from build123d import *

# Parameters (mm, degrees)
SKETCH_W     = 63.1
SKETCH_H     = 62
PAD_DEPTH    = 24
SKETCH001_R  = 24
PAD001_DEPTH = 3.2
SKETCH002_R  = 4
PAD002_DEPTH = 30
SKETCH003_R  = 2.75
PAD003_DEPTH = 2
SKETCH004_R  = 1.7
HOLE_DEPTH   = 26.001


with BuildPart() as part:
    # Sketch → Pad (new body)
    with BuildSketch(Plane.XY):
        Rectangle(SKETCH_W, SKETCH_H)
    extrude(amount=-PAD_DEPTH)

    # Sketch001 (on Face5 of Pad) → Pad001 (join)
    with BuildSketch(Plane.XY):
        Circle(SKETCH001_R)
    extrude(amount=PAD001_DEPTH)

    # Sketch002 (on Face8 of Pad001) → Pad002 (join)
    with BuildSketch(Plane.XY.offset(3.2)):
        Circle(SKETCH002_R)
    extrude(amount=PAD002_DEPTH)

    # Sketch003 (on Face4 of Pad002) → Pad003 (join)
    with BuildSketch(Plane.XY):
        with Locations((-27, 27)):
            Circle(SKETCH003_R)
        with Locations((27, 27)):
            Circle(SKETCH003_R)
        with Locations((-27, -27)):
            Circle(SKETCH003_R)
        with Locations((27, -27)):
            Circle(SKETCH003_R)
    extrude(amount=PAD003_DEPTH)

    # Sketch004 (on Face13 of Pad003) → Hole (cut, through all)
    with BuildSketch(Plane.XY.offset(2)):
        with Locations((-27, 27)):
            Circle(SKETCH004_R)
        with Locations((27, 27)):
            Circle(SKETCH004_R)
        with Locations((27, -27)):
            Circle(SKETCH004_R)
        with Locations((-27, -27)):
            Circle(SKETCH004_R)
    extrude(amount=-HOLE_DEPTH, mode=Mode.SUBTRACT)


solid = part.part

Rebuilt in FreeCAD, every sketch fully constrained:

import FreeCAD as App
import Part
import Sketcher

V = App.Vector
Q = App.Units.Quantity


def add_polygon(sketch, points):
    """Adds a closed chain of lines whose ends are joined by coincident constraints."""
    first, n = sketch.GeometryCount, len(points)
    for a, b in zip(points, points[1:] + points[:1]):
        sketch.addGeometry(Part.LineSegment(App.Vector(*a, 0), App.Vector(*b, 0)), False)
    for i in range(n):
        sketch.addConstraint(Sketcher.Constraint("Coincident", first + i, 2, first + (i + 1) % n, 1))

doc = App.newDocument("Part")
body = doc.addObject("PartDesign::Body", "Body")

# Sketch on XY plane
sketch1 = doc.addObject("Sketcher::SketchObject", "Sketch")
body.addObject(sketch1)
sketch1.AttachmentSupport = (doc.XY_Plane, [""])
sketch1.MapMode = "FlatFace"
add_polygon(sketch1, [(-31.55, 31), (-31.55, -31), (31.55, -31), (31.55, 31)])  # lines 0-3
sketch1.addConstraint([
    Sketcher.Constraint("Vertical", 0),
    Sketcher.Constraint("Horizontal", 1),
    Sketcher.Constraint("Vertical", 2),
    Sketcher.Constraint("Horizontal", 3),
    Sketcher.Constraint("Symmetric", 0, 2, 2, 2, -1, 1),
    Sketcher.Constraint("DistanceY", 0, 2, 0, 1, Q("62 mm")),
    Sketcher.Constraint("DistanceX", 1, 1, 1, 2, Q("63.1 mm")),
])
pad1 = doc.addObject("PartDesign::Pad", "Pad")
body.addObject(pad1)
pad1.Profile = sketch1
pad1.Length = 24
pad1.Reversed = True

# Sketch on XY plane
sketch2 = doc.addObject("Sketcher::SketchObject", "Sketch001")
body.addObject(sketch2)
sketch2.AttachmentSupport = (doc.XY_Plane, [""])
sketch2.MapMode = "FlatFace"
sketch2.addGeometry(Part.Circle(V(0, 0, 0), V(0, 0, 1), 24), False)
sketch2.addConstraint([
    Sketcher.Constraint("Coincident", 0, 3, -1, 1),
    Sketcher.Constraint("Diameter", 0, Q("48 mm")),
])
pad2 = doc.addObject("PartDesign::Pad", "Pad001")
body.addObject(pad2)
pad2.Profile = sketch2
pad2.Length = 3.2

# Sketch on XY plane
sketch3 = doc.addObject("Sketcher::SketchObject", "Sketch002")
body.addObject(sketch3)
sketch3.AttachmentSupport = (doc.XY_Plane, [""])
sketch3.MapMode = "FlatFace"
sketch3.AttachmentOffset = App.Placement(V(0, 0, 3.2), App.Rotation())
sketch3.addGeometry(Part.Circle(V(0, 0, 0), V(0, 0, 1), 4), False)
sketch3.addConstraint([
    Sketcher.Constraint("Coincident", 0, 3, -1, 1),
    Sketcher.Constraint("Diameter", 0, Q("8 mm")),
])
pad3 = doc.addObject("PartDesign::Pad", "Pad002")
body.addObject(pad3)
pad3.Profile = sketch3
pad3.Length = 30

# Sketch on XY plane
sketch4 = doc.addObject("Sketcher::SketchObject", "Sketch003")
body.addObject(sketch4)
sketch4.AttachmentSupport = (doc.XY_Plane, [""])
sketch4.MapMode = "FlatFace"
sketch4.addGeometry([
    Part.Circle(V(-27, 27, 0), V(0, 0, 1), 2.75),
    Part.Circle(V(27, 27, 0), V(0, 0, 1), 2.75),
    Part.Circle(V(-27, -27, 0), V(0, 0, 1), 2.75),
    Part.Circle(V(27, -27, 0), V(0, 0, 1), 2.75),
], False)
sketch4.addConstraint([
    Sketcher.Constraint("Equal", 0, 1),
    Sketcher.Constraint("Equal", 1, 2),
    Sketcher.Constraint("Equal", 2, 3),
    Sketcher.Constraint("Symmetric", 1, 3, 2, 3, -1, 1),
    Sketcher.Constraint("Symmetric", 0, 3, 3, 3, -1, 1),
    Sketcher.Constraint("Symmetric", 0, 3, 1, 3, -2),
    Sketcher.Constraint("Diameter", 0, Q("5.5 mm")),
    Sketcher.Constraint("DistanceX", 0, 3, -1, 1, Q("27 mm")),
    Sketcher.Constraint("DistanceY", -1, 1, 0, 3, Q("27 mm")),
])
pad4 = doc.addObject("PartDesign::Pad", "Pad003")
body.addObject(pad4)
pad4.Profile = sketch4
pad4.Length = 2

# Sketch on XY plane
sketch5 = doc.addObject("Sketcher::SketchObject", "Sketch004")
body.addObject(sketch5)
sketch5.AttachmentSupport = (doc.XY_Plane, [""])
sketch5.MapMode = "FlatFace"
sketch5.AttachmentOffset = App.Placement(V(0, 0, 2), App.Rotation())
sketch5.addGeometry([
    Part.Circle(V(-27, 27, 0), V(0, 0, 1), 1.7),
    Part.Circle(V(27, 27, 0), V(0, 0, 1), 1.7),
    Part.Circle(V(27, -27, 0), V(0, 0, 1), 1.7),
    Part.Circle(V(-27, -27, 0), V(0, 0, 1), 1.7),
], False)
sketch5.addConstraint([
    Sketcher.Constraint("Equal", 0, 1),
    Sketcher.Constraint("Equal", 1, 2),
    Sketcher.Constraint("Equal", 2, 3),
    Sketcher.Constraint("Symmetric", 0, 3, 2, 3, -1, 1),
    Sketcher.Constraint("Symmetric", 1, 3, 3, 3, -1, 1),
    Sketcher.Constraint("Symmetric", 0, 3, 1, 3, -2),
    Sketcher.Constraint("Diameter", 0, Q("3.4 mm")),
    Sketcher.Constraint("DistanceX", 0, 3, -1, 1, Q("27 mm")),
    Sketcher.Constraint("DistanceY", -1, 1, 0, 3, Q("27 mm")),
])
pocket1 = doc.addObject("PartDesign::Pocket", "Pocket")
body.addObject(pocket1)
pocket1.Profile = sketch5
pocket1.Type = "ThroughAll"

doc.recompute()
